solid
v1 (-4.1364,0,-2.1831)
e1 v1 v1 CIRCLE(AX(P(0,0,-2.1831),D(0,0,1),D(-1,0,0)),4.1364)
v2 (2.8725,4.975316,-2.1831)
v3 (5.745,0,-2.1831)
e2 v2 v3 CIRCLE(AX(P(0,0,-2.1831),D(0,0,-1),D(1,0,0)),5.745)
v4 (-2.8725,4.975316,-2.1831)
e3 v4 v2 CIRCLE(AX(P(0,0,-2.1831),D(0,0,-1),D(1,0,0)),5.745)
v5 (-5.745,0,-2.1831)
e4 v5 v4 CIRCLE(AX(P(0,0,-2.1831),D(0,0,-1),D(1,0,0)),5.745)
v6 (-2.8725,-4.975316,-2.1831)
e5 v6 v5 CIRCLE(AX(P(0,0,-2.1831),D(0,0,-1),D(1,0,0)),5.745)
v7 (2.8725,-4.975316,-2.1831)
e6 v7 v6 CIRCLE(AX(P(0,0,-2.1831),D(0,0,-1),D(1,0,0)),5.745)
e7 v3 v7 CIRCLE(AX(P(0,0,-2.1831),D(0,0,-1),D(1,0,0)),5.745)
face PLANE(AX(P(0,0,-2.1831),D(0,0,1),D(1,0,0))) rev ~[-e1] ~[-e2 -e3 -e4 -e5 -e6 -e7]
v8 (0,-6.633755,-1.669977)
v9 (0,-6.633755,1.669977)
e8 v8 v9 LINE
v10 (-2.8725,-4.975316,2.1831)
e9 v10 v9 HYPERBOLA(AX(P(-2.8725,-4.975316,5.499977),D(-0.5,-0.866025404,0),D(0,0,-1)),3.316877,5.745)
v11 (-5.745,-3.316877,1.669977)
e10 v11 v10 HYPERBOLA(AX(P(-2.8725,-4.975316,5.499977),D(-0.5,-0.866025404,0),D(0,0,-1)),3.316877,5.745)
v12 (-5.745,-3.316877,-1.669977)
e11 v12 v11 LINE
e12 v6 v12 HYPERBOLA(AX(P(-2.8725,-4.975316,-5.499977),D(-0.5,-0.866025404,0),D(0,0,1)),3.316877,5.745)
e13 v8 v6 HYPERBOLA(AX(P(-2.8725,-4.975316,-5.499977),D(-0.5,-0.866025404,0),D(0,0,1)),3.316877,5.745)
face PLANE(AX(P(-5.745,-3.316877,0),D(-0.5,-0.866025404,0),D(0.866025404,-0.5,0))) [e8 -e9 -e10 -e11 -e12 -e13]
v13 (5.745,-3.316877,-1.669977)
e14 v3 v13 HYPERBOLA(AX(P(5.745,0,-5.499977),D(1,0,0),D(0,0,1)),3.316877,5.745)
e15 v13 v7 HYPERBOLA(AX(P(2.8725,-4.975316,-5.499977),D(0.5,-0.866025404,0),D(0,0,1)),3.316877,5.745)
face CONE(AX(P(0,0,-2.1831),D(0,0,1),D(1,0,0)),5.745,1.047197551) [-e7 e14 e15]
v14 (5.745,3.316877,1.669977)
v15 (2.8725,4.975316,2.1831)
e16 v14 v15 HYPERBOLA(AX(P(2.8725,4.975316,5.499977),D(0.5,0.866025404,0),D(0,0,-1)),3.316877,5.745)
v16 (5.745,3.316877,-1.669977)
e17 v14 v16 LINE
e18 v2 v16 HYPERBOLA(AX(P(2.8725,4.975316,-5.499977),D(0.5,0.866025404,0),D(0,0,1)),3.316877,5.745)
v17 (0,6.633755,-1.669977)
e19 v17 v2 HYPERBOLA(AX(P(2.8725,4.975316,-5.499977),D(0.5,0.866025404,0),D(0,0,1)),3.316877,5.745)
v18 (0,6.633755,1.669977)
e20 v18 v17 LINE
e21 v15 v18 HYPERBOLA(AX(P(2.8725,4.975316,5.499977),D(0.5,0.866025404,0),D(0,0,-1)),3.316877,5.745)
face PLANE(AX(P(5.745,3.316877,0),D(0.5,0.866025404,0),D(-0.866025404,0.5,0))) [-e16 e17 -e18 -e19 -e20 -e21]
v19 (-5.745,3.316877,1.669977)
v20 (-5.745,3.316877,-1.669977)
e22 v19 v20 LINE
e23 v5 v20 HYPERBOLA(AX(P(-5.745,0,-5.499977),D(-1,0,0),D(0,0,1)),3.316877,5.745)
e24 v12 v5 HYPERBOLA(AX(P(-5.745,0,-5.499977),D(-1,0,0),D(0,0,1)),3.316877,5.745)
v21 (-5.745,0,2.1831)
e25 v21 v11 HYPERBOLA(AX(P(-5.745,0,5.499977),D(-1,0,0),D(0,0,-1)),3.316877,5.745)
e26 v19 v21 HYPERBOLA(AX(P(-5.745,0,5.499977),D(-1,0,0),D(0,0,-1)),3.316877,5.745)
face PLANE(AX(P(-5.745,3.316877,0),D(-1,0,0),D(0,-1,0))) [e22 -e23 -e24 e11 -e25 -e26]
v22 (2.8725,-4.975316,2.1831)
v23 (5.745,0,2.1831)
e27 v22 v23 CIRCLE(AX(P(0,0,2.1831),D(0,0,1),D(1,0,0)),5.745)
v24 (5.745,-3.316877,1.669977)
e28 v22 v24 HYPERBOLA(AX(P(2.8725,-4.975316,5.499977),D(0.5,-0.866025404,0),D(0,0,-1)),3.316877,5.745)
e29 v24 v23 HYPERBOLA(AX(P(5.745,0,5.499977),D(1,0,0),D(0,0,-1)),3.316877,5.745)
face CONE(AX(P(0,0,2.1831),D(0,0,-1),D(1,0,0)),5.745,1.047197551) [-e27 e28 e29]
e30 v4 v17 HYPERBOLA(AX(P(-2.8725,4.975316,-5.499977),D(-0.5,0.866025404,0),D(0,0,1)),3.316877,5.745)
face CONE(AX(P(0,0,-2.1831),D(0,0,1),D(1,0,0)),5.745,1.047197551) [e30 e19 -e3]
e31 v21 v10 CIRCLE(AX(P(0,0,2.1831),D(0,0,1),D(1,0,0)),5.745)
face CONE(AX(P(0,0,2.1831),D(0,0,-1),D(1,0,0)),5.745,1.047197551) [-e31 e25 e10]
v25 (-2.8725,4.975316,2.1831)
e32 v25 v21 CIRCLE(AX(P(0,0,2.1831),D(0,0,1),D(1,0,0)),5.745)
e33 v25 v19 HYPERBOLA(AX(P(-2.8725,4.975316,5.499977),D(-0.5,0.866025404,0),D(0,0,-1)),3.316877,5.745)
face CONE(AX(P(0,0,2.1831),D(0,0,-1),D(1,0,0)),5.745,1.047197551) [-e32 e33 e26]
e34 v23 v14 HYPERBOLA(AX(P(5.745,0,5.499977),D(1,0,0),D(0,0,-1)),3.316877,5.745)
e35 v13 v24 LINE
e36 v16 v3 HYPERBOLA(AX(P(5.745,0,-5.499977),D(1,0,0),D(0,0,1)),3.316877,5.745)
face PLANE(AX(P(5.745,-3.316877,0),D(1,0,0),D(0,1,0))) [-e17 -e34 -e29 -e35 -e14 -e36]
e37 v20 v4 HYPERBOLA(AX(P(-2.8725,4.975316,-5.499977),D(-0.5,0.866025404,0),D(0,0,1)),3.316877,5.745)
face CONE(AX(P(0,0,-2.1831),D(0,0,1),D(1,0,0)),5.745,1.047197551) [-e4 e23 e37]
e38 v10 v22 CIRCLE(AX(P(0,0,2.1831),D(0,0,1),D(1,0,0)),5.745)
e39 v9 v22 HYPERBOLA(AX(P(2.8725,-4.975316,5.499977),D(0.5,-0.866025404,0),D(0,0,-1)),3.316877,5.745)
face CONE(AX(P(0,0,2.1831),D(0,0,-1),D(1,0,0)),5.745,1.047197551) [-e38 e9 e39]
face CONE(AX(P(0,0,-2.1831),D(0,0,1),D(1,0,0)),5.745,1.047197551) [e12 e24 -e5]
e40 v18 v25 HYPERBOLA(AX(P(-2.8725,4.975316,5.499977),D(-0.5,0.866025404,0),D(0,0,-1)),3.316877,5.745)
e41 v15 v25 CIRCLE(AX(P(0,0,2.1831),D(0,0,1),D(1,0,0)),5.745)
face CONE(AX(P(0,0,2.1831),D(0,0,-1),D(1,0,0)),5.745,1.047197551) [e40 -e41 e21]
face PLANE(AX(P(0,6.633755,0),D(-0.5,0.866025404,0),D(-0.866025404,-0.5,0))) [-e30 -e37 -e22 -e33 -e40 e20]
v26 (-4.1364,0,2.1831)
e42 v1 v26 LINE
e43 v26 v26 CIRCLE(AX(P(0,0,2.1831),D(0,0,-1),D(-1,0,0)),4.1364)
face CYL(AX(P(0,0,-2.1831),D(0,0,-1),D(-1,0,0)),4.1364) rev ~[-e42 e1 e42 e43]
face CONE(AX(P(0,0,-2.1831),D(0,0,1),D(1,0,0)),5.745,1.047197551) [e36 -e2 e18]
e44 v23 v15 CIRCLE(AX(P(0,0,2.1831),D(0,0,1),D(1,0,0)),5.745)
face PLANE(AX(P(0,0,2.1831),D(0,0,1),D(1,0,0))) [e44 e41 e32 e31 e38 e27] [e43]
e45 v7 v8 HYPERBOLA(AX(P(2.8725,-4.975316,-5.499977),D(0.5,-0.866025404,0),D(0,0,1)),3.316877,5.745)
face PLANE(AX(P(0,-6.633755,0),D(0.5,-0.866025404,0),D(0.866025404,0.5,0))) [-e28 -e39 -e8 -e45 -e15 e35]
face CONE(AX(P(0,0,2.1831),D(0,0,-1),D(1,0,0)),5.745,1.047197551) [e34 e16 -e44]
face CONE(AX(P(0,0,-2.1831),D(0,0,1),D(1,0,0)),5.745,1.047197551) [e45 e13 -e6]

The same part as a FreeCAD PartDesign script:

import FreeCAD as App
import Part
import Sketcher
from FreeCAD import Vector
Q = App.Units.Quantity


def faces_at(feature, points):
    """Names of the faces that lie closest to the given points."""
    faces = feature.Shape.Faces
    near = lambda p: min(range(len(faces)), key=lambda i: faces[i].distToShape(Part.Vertex(*p))[0])
    return sorted({f"Face{near(p) + 1}" for p in points})

doc = App.newDocument("Part")
body = doc.addObject("PartDesign::Body", "Body")

# Sketch on XY plane
sketch1 = body.newObject("Sketcher::SketchObject", "Sketch")
sketch1.AttachmentSupport = (doc.getObject("XY_Plane"), [""])
sketch1.MapMode = "FlatFace"
sketch1.addGeometry(Part.LineSegment(Vector(-5.745, 3.316877, 0), Vector(-5.745, -3.316877, 0)), False)
sketch1.addGeometry(Part.LineSegment(Vector(-5.745, -3.316877, 0), Vector(0, -6.633755, 0)), False)
sketch1.addGeometry(Part.LineSegment(Vector(0, -6.633755, 0), Vector(5.745, -3.316877, 0)), False)
sketch1.addGeometry(Part.LineSegment(Vector(5.745, -3.316877, 0), Vector(5.745, 3.316877, 0)), False)
sketch1.addGeometry(Part.LineSegment(Vector(5.745, 3.316877, 0), Vector(0, 6.633755, 0)), False)
sketch1.addGeometry(Part.LineSegment(Vector(0, 6.633755, 0), Vector(-5.745, 3.316877, 0)), False)
sketch1.addConstraint(Sketcher.Constraint("Coincident", 0, 2, 1, 1))
sketch1.addConstraint(Sketcher.Constraint("Coincident", 1, 2, 2, 1))
sketch1.addConstraint(Sketcher.Constraint("Coincident", 2, 2, 3, 1))
sketch1.addConstraint(Sketcher.Constraint("Coincident", 3, 2, 4, 1))
sketch1.addConstraint(Sketcher.Constraint("Coincident", 4, 2, 5, 1))
sketch1.addConstraint(Sketcher.Constraint("Coincident", 5, 2, 0, 1))
sketch1.addConstraint(Sketcher.Constraint("Vertical", 0))
sketch1.addConstraint(Sketcher.Constraint("Vertical", 3))
sketch1.addConstraint(Sketcher.Constraint("Symmetric", 0, 2, 3, 2, -1, 1))
sketch1.addConstraint(Sketcher.Constraint("Symmetric", 1, 2, 4, 2, -1, 1))
sketch1.addConstraint(Sketcher.Constraint("PointOnObject", 1, 2, -2))
sketch1.addConstraint(Sketcher.Constraint("Parallel", 2, 5))
sketch1.addConstraint(Sketcher.Constraint("Horizontal", 0, 2, 2, 2))
sketch1.addConstraint(Sketcher.Constraint("Angle", 1, Q("-30 deg")))
sketch1.addConstraint(Sketcher.Constraint("DistanceX", 0, 2, -1, 1, 5.745))
sketch1.addConstraint(Sketcher.Constraint("DistanceY", 0, 2, 0, 1, 6.633755))
pad1 = body.newObject("PartDesign::Pad", "Pad")
pad1.Profile = sketch1
pad1.Length = 4.3662
pad1.Midplane = True

# Sketch on YZ plane
sketch2 = body.newObject("Sketcher::SketchObject", "Sketch001")
sketch2.AttachmentSupport = (doc.getObject("YZ_Plane"), [""])
sketch2.MapMode = "FlatFace"
sketch2.addGeometry(Part.LineSegment(Vector(0, 2.1831, 0), Vector(-4.1364, 2.1831, 0)), False)
sketch2.addGeometry(Part.LineSegment(Vector(-4.1364, 2.1831, 0), Vector(0, -1.9533, 0)), False)
sketch2.addGeometry(Part.LineSegment(Vector(0, -1.9533, 0), Vector(0, 2.1831, 0)), False)
sketch2.addConstraint(Sketcher.Constraint("Coincident", 0, 2, 1, 1))
sketch2.addConstraint(Sketcher.Constraint("Coincident", 1, 2, 2, 1))
sketch2.addConstraint(Sketcher.Constraint("Coincident", 2, 2, 0, 1))
sketch2.addConstraint(Sketcher.Constraint("Horizontal", 0))
sketch2.addConstraint(Sketcher.Constraint("Vertical", 2))
sketch2.addConstraint(Sketcher.Constraint("PointOnObject", 1, 2, -2))
sketch2.addConstraint(Sketcher.Constraint("Equal", 0, 2))
sketch2.addConstraint(Sketcher.Constraint("DistanceX", 0, 2, 0, 1, 4.1364))
sketch2.addConstraint(Sketcher.Constraint("DistanceY", -1, 1, 0, 2, 2.1831))
groove = body.newObject("PartDesign::Groove", "Groove")
groove.Profile = sketch2
groove.ReferenceAxis = (sketch2, ["V_Axis"])
groove.Angle = 360

# Sketch on YZ plane
sketch3 = body.newObject("Sketcher::SketchObject", "Sketch002")
sketch3.AttachmentSupport = (doc.getObject("YZ_Plane"), [""])
sketch3.MapMode = "FlatFace"
sketch3.addGeometry(Part.LineSegment(Vector(0, -2.1831, 0), Vector(4.1364, -2.1831, 0)), False)
sketch3.addGeometry(Part.LineSegment(Vector(4.1364, -2.1831, 0), Vector(0, 1.9533, 0)), False)
sketch3.addGeometry(Part.LineSegment(Vector(0, 1.9533, 0), Vector(0, -2.1831, 0)), False)
sketch3.addConstraint(Sketcher.Constraint("Coincident", 0, 2, 1, 1))
sketch3.addConstraint(Sketcher.Constraint("Coincident", 1, 2, 2, 1))
sketch3.addConstraint(Sketcher.Constraint("Coincident", 2, 2, 0, 1))
sketch3.addConstraint(Sketcher.Constraint("Horizontal", 0))
sketch3.addConstraint(Sketcher.Constraint("Vertical", 2))
sketch3.addConstraint(Sketcher.Constraint("PointOnObject", 1, 2, -2))
sketch3.addConstraint(Sketcher.Constraint("Equal", 0, 2))
sketch3.addConstraint(Sketcher.Constraint("DistanceX", 0, 1, 0, 2, 4.1364))
sketch3.addConstraint(Sketcher.Constraint("DistanceY", 0, 2, -1, 1, 2.1831))
groove2 = body.newObject("PartDesign::Groove", "Groove001")
groove2.Profile = sketch3
groove2.ReferenceAxis = (sketch3, ["V_Axis"])
groove2.Angle = 360
body2 = doc.addObject("PartDesign::Body", "Body001")

# Sketch on XY plane
sketch4 = body2.newObject("Sketcher::SketchObject", "Sketch003")
sketch4.AttachmentSupport = (doc.getObject("XY_Plane001"), [""])
sketch4.MapMode = "FlatFace"
sketch4.AttachmentOffset = App.Placement(Vector(0, 0, -2.1831), App.Rotation())
sketch4.addGeometry(Part.Circle(Vector(0, 0, 0), Vector(0, 0, 1), 4.1364), False)
sketch4.addConstraint(Sketcher.Constraint("Coincident", 0, 3, -1, 1))
sketch4.addConstraint(Sketcher.Constraint("Diameter", 0, 8.2728))
pad2 = body2.newObject("PartDesign::Pad", "Pad001")
pad2.Profile = sketch4
pad2.Length = 4.3662
doc.recompute()

boolean = body.newObject("PartDesign::Boolean", "Boolean")
boolean.Type = "Cut"
boolean.addObjects([body2])
body3 = doc.addObject("PartDesign::Body", "Body002")

# Sketch on XY plane
sketch5 = body3.newObject("Sketcher::SketchObject", "Sketch004")
sketch5.AttachmentSupport = (doc.getObject("XY_Plane002"), [""])
sketch5.MapMode = "FlatFace"
sketch5.AttachmentOffset = App.Placement(Vector(0, 0, 2.1831), App.Rotation())
sketch5.addGeometry(Part.LineSegment(Vector(-52.548, 53.437, 0), Vector(-52.548, -53.437, 0)), False)
sketch5.addGeometry(Part.LineSegment(Vector(-52.548, -53.437, 0), Vector(52.548, -53.437, 0)), False)
sketch5.addGeometry(Part.LineSegment(Vector(52.548, -53.437, 0), Vector(52.548, 53.437, 0)), False)
sketch5.addGeometry(Part.LineSegment(Vector(52.548, 53.437, 0), Vector(-52.548, 53.437, 0)), False)
sketch5.addGeometry(Part.Circle(Vector(0, 0, 0), Vector(0, 0, 1), 5.745), False)
sketch5.addConstraint(Sketcher.Constraint("Coincident", 0, 2, 1, 1))
sketch5.addConstraint(Sketcher.Constraint("Coincident", 1, 2, 2, 1))
sketch5.addConstraint(Sketcher.Constraint("Coincident", 2, 2, 3, 1))
sketch5.addConstraint(Sketcher.Constraint("Coincident", 3, 2, 0, 1))
sketch5.addConstraint(Sketcher.Constraint("Vertical", 0))
sketch5.addConstraint(Sketcher.Constraint("Horizontal", 1))
sketch5.addConstraint(Sketcher.Constraint("Vertical", 2))
sketch5.addConstraint(Sketcher.Constraint("Horizontal", 3))
sketch5.addConstraint(Sketcher.Constraint("Coincident", 4, 3, -1, 1))
sketch5.addConstraint(Sketcher.Constraint("Symmetric", 0, 2, 2, 2, -1, 1))
sketch5.addConstraint(Sketcher.Constraint("Diameter", 4, 11.49))
sketch5.addConstraint(Sketcher.Constraint("DistanceX", 1, 1, 1, 2, 105.096))
sketch5.addConstraint(Sketcher.Constraint("DistanceY", 0, 2, 0, 1, 106.874))
pad3 = body3.newObject("PartDesign::Pad", "Pad002")
pad3.Profile = sketch5
pad3.Length = Q("1 in")
pad3.Reversed = True
doc.recompute()

datumplane = body3.newObject("PartDesign::Plane", "DatumPlane")
datumplane.AttachmentSupport = (doc.getObject("XY_Plane002"), [""])
datumplane.MapMode = "FlatFace"
datumplane.AttachmentOffset = App.Placement(Vector(0, 0, 2.1831), App.Rotation())
draft = body3.newObject("PartDesign::Draft", "Draft")
draft.Base = (pad3, faces_at(pad3, [
    (0, -53.437, -10.517),
    (52.548, 0, -10.517),
    (0, 53.437, -10.517),
    (-52.548, 0, -10.517),
    (-5.745, 0, -10.517),
]))
draft.NeutralPlane = (datumplane, [""])
draft.Angle = 60
draft.Reversed = True
doc.recompute()

boolean2 = body.newObject("PartDesign::Boolean", "Boolean001")
boolean2.Type = "Cut"
boolean2.addObjects([body3])
body4 = doc.addObject("PartDesign::Body", "Body003")

# Sketch on XY plane
sketch6 = body4.newObject("Sketcher::SketchObject", "Sketch005")
sketch6.AttachmentSupport = (doc.getObject("XY_Plane003"), [""])
sketch6.MapMode = "FlatFace"
sketch6.AttachmentOffset = App.Placement(Vector(0, 0, -2.1831), App.Rotation())
sketch6.addGeometry(Part.LineSegment(Vector(-52.548, -53.437, 0), Vector(-52.548, 53.437, 0)), False)
sketch6.addGeometry(Part.LineSegment(Vector(-52.548, 53.437, 0), Vector(52.548, 53.437, 0)), False)
sketch6.addGeometry(Part.LineSegment(Vector(52.548, 53.437, 0), Vector(52.548, -53.437, 0)), False)
sketch6.addGeometry(Part.LineSegment(Vector(52.548, -53.437, 0), Vector(-52.548, -53.437, 0)), False)
sketch6.addGeometry(Part.Circle(Vector(0, 0, 0), Vector(0, 0, 1), 5.745), False)
sketch6.addConstraint(Sketcher.Constraint("Coincident", 0, 2, 1, 1))
sketch6.addConstraint(Sketcher.Constraint("Coincident", 1, 2, 2, 1))
sketch6.addConstraint(Sketcher.Constraint("Coincident", 2, 2, 3, 1))
sketch6.addConstraint(Sketcher.Constraint("Coincident", 3, 2, 0, 1))
sketch6.addConstraint(Sketcher.Constraint("Vertical", 0))
sketch6.addConstraint(Sketcher.Constraint("Horizontal", 1))
sketch6.addConstraint(Sketcher.Constraint("Vertical", 2))
sketch6.addConstraint(Sketcher.Constraint("Horizontal", 3))
sketch6.addConstraint(Sketcher.Constraint("Coincident", 4, 3, -1, 1))
sketch6.addConstraint(Sketcher.Constraint("Symmetric", 0, 2, 2, 2, -1, 1))
sketch6.addConstraint(Sketcher.Constraint("Diameter", 4, 11.49))
sketch6.addConstraint(Sketcher.Constraint("DistanceX", 1, 1, 1, 2, 105.096))
sketch6.addConstraint(Sketcher.Constraint("DistanceY", 0, 1, 0, 2, 106.874))
pad4 = body4.newObject("PartDesign::Pad", "Pad003")
pad4.Profile = sketch6
pad4.Length = Q("1 in")
doc.recompute()

datumplane2 = body4.newObject("PartDesign::Plane", "DatumPlane001")
datumplane2.AttachmentSupport = (doc.getObject("XY_Plane003"), [""])
datumplane2.MapMode = "FlatFace"
datumplane2.AttachmentOffset = App.Placement(Vector(0, 0, -2.1831), App.Rotation())
draft2 = body4.newObject("PartDesign::Draft", "Draft001")
draft2.Base = (pad4, faces_at(pad4, [
    (0, -53.437, 10.517),
    (52.548, 0, 10.517),
    (0, 53.437, 10.517),
    (-52.548, 0, 10.517),
    (-5.745, 0, 10.517),
]))
draft2.NeutralPlane = (datumplane2, [""])
draft2.Angle = 60
draft2.Reversed = False
doc.recompute()

boolean3 = body.newObject("PartDesign::Boolean", "Boolean002")
boolean3.Type = "Cut"
boolean3.addObjects([body4])

doc.recompute()
